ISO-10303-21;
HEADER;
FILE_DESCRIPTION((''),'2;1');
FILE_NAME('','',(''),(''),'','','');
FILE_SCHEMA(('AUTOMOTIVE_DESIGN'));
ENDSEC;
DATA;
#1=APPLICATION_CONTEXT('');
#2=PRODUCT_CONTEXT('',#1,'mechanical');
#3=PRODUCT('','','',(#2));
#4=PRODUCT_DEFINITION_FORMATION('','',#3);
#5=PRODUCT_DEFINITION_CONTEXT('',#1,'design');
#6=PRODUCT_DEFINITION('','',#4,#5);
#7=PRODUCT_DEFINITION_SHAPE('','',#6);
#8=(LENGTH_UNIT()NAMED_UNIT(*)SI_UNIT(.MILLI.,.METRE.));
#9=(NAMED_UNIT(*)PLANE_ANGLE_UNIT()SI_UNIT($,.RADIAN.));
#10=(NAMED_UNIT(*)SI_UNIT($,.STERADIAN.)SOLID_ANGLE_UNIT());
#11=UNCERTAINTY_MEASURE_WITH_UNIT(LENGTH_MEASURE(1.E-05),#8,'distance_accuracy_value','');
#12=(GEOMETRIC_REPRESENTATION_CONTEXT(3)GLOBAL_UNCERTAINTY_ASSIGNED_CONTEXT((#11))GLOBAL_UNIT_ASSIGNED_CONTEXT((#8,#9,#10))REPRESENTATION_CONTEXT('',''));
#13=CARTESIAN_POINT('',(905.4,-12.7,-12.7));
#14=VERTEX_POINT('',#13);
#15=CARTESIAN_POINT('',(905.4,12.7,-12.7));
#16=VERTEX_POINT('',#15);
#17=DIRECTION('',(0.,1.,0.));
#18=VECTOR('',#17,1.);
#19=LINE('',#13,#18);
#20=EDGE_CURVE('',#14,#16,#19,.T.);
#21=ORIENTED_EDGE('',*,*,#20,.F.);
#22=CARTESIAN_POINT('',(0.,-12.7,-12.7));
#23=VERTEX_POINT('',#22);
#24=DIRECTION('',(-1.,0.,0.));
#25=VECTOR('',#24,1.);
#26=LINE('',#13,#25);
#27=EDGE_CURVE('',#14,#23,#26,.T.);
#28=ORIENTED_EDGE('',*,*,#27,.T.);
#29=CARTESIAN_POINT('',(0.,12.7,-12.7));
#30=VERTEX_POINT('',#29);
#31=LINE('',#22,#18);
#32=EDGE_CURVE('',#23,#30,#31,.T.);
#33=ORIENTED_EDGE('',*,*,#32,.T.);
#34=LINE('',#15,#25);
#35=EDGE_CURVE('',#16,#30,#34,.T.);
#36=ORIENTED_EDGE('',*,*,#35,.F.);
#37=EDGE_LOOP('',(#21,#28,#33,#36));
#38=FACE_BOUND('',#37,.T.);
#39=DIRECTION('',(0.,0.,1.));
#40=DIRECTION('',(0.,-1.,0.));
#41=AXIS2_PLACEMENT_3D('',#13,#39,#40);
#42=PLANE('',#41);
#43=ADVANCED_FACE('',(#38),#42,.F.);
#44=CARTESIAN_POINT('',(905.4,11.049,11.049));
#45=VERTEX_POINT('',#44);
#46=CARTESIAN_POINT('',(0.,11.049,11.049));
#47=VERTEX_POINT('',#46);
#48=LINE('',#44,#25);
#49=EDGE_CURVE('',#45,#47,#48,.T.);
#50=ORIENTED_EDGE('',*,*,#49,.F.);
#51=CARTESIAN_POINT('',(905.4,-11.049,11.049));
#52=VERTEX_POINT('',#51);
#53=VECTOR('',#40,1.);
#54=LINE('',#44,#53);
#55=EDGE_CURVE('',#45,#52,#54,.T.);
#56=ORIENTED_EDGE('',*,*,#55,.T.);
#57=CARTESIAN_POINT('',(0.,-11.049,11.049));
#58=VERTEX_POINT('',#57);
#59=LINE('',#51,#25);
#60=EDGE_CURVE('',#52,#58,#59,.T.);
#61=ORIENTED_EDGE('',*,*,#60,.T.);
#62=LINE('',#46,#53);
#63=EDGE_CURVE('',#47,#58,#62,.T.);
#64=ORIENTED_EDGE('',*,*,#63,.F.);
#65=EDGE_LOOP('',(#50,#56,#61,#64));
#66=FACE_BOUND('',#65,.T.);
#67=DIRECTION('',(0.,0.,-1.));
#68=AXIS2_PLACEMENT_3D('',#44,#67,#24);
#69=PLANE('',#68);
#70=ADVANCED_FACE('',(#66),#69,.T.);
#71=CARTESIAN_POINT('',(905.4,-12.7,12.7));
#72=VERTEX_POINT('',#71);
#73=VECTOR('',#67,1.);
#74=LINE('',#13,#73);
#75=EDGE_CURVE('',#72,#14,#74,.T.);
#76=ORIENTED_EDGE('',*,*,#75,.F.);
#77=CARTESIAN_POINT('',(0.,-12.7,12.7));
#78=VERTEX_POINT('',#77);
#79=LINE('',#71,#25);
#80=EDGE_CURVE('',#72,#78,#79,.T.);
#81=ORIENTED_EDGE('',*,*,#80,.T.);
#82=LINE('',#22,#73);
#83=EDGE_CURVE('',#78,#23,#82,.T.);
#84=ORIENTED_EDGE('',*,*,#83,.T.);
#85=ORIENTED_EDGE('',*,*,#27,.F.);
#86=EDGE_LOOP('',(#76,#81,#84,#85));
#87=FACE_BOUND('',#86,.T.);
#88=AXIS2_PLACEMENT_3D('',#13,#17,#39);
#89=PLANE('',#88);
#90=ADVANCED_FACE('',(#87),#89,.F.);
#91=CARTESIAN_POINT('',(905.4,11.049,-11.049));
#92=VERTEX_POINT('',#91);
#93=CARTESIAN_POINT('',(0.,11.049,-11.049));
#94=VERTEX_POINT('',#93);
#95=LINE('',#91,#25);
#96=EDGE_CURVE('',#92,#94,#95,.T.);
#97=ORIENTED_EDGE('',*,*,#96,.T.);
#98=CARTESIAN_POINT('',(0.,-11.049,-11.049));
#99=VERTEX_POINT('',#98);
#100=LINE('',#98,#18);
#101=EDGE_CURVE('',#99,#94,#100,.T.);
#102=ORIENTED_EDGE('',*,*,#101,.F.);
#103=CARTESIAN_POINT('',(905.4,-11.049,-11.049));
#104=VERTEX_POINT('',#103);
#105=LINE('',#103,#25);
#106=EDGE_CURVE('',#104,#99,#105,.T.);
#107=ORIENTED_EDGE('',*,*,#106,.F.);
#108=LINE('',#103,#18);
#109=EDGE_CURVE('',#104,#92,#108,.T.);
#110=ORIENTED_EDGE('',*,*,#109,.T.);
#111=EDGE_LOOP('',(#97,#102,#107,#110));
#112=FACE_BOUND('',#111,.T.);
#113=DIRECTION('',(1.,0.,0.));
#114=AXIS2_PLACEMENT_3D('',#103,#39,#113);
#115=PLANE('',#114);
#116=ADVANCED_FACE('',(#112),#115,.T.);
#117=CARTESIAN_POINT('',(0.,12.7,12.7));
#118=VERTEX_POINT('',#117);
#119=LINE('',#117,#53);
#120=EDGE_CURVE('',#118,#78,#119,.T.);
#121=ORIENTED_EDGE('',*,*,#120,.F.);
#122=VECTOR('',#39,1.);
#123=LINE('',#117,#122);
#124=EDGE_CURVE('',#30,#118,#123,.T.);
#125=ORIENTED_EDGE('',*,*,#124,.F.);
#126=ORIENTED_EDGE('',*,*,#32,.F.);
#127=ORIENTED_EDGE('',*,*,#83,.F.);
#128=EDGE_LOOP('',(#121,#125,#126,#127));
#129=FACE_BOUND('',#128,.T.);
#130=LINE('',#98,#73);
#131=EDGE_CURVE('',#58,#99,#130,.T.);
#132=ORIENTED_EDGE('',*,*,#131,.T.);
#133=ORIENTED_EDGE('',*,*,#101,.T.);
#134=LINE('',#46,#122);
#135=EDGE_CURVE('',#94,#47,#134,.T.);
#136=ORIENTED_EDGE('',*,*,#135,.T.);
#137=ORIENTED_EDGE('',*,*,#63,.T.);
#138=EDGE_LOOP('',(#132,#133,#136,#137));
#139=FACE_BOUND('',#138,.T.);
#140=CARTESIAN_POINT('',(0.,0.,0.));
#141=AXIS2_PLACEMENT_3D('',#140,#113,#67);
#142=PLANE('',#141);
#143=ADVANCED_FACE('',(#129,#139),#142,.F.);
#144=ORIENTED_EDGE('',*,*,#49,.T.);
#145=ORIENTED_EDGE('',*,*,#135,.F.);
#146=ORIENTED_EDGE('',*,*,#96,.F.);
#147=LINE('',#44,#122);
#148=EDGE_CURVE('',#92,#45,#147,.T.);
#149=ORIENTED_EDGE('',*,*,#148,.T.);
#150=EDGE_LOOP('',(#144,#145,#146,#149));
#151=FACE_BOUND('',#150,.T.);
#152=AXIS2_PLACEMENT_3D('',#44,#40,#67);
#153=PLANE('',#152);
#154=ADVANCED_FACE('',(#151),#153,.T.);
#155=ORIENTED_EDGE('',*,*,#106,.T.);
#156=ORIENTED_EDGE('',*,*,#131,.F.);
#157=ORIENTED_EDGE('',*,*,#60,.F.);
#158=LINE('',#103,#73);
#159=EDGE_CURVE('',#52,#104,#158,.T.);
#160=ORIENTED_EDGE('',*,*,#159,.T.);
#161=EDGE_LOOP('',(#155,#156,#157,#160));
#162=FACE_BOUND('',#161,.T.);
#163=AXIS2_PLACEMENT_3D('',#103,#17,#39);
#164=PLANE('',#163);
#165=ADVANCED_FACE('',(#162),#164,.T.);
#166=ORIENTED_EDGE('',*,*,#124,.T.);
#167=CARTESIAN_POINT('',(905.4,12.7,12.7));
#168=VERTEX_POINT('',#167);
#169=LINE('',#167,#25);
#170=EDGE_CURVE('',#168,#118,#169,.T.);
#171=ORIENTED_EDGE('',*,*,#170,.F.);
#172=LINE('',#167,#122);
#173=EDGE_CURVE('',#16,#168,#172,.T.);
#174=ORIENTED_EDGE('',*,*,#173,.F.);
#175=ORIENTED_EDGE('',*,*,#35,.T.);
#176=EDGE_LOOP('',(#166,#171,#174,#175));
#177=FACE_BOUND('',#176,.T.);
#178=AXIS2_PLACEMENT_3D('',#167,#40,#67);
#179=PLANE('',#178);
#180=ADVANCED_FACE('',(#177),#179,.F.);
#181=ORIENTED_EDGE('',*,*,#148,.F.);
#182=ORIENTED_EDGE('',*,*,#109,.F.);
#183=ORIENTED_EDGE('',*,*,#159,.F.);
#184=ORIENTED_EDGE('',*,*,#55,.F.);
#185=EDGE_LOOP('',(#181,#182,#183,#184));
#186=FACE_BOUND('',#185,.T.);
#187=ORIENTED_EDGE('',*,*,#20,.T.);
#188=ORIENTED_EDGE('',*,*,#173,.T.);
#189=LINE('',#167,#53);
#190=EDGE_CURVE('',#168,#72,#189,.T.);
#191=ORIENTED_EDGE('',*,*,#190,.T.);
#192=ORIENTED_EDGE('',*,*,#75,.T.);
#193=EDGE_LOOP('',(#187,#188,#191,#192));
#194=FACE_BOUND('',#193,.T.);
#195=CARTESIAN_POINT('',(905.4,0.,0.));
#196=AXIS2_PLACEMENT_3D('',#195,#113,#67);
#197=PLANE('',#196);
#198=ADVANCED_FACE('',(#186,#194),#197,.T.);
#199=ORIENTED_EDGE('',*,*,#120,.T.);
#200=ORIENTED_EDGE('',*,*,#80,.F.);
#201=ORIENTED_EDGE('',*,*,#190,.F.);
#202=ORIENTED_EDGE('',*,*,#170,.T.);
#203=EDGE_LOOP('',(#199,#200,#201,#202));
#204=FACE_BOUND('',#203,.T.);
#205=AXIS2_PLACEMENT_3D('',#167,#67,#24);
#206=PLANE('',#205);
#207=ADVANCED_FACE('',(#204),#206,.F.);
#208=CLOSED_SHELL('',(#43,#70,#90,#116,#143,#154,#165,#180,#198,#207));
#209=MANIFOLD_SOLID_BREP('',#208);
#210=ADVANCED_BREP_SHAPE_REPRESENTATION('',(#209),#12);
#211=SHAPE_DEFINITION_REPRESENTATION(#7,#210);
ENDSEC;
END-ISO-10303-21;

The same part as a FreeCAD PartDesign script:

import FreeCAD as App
import Part
import Sketcher

V = App.Vector
Q = App.Units.Quantity


def add_polygon(sketch, points):
    """Adds a closed chain of lines whose ends are joined by coincident constraints."""
    first, n = sketch.GeometryCount, len(points)
    for a, b in zip(points, points[1:] + points[:1]):
        sketch.addGeometry(Part.LineSegment(App.Vector(*a, 0), App.Vector(*b, 0)), False)
    for i in range(n):
        sketch.addConstraint(Sketcher.Constraint("Coincident", first + i, 2, first + (i + 1) % n, 1))

doc = App.newDocument("Part")
body = doc.addObject("PartDesign::Body", "Body")

# Sketch on YZ plane
sketch1 = body.newObject("Sketcher::SketchObject", "Sketch")
sketch1.AttachmentSupport = (doc.getObject("YZ_Plane"), [""])
sketch1.MapMode = "FlatFace"
add_polygon(sketch1, [(-13, 13), (-13, -13), (13, -13), (13, 13)])  # lines 0-3
add_polygon(sketch1, [(11, -11), (-11, -11), (-11, 11), (11, 11)])  # lines 4-7
sketch1.addConstraint([
    Sketcher.Constraint("Vertical", 0),
    Sketcher.Constraint("Horizontal", 1),
    Sketcher.Constraint("Vertical", 2),
    Sketcher.Constraint("Horizontal", 3),
    Sketcher.Constraint("Horizontal", 4),
    Sketcher.Constraint("Vertical", 5),
    Sketcher.Constraint("Horizontal", 6),
    Sketcher.Constraint("Vertical", 7),
    Sketcher.Constraint("Symmetric", 0, 2, 2, 2, -1, 1),
    Sketcher.Constraint("Symmetric", 4, 2, 6, 2, -1, 1),
    Sketcher.Constraint("Equal", 3, 0),
    Sketcher.Constraint("Equal", 6, 5),
    Sketcher.Constraint("DistanceX", 1, 1, 1, 2, Q("1 in")),
    Sketcher.Constraint("DistanceX", 4, 2, 4, 1, Q("0.87 in")),
])
pad1 = body.newObject("PartDesign::Pad", "Pad")
pad1.Profile = sketch1
pad1.Length = 905.4

doc.recompute()
